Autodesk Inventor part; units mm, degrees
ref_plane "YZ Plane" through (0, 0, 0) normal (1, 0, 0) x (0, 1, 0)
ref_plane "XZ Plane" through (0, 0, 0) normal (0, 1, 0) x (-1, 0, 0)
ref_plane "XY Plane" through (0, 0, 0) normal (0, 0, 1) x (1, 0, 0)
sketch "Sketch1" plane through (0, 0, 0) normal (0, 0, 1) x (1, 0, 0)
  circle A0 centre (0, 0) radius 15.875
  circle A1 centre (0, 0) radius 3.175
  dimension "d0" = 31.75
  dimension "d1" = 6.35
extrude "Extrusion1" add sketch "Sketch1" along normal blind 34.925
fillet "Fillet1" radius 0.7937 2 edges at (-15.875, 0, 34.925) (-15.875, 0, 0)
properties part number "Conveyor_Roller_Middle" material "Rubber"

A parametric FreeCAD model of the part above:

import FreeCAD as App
import Part
import Sketcher
Q = App.Units.Quantity


def edges_at(feature, points):
    """Names of the edges that pass closest to the given points."""
    edges = feature.Shape.Edges
    near = lambda p: min(range(len(edges)), key=lambda i: edges[i].distToShape(Part.Vertex(*p))[0])
    return sorted({f"Edge{near(p) + 1}" for p in points})

doc = App.newDocument("Part")
body = doc.addObject("PartDesign::Body", "Body")

sketch1 = body.newObject("Sketcher::SketchObject", "Sketch")
sketch1.AttachmentSupport = (doc.getObject("XY_Plane"), [""])
sketch1.MapMode = "FlatFace"
sketch1.addGeometry([
    Part.Circle(App.Vector(0, 0, 0), App.Vector(0, 0, 1), 15.875),
    Part.Circle(App.Vector(0, 0, 0), App.Vector(0, 0, 1), 3.175),
], False)
sketch1.addConstraint([
    Sketcher.Constraint("Coincident", 0, 3, -1, 1),
    Sketcher.Constraint("Coincident", 1, 3, -1, 1),
    Sketcher.Constraint("Diameter", 0, Q("1.25 in")),
    Sketcher.Constraint("Diameter", 1, Q("0.25 in")),
])
pad1 = body.newObject("PartDesign::Pad", "Pad")
pad1.Profile = sketch1
pad1.Length = Q("1.375 in")
doc.recompute()

fillet = body.newObject("PartDesign::Fillet", "Fillet")
fillet.Base = (pad1, edges_at(pad1, [(-15.875, 0, 34.925), (-15.875, 0, 0)]))
fillet.Radius = Q("0.031248 in")

doc.recompute()
